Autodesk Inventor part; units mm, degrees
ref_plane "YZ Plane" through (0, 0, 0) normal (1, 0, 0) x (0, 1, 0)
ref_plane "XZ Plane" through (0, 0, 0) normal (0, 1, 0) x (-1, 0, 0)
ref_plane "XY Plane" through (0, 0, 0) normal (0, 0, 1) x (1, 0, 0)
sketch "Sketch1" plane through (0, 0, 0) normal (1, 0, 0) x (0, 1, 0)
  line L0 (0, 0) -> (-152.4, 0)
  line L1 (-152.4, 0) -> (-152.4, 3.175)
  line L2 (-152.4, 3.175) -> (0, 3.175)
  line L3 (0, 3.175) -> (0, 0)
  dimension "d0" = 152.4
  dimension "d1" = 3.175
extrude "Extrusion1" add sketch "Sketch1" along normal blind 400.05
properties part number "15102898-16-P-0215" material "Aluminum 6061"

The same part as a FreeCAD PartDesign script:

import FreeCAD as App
import Part
import Sketcher

V = App.Vector
Q = App.Units.Quantity


def add_polygon(sketch, points):
    """Adds a closed chain of lines whose ends are joined by coincident constraints."""
    first, n = sketch.GeometryCount, len(points)
    for a, b in zip(points, points[1:] + points[:1]):
        sketch.addGeometry(Part.LineSegment(App.Vector(*a, 0), App.Vector(*b, 0)), False)
    for i in range(n):
        sketch.addConstraint(Sketcher.Constraint("Coincident", first + i, 2, first + (i + 1) % n, 1))

doc = App.newDocument("Part")
body = doc.addObject("PartDesign::Body", "Body")

# Sketch on YZ plane
sketch1 = body.newObject("Sketcher::SketchObject", "Sketch")
sketch1.AttachmentSupport = (doc.getObject("YZ_Plane"), [""])
sketch1.MapMode = "FlatFace"
add_polygon(sketch1, [(-152.4, 0), (0, 0), (0, 3.175), (-152.4, 3.175)])  # lines 0-3
sketch1.addConstraint([
    Sketcher.Constraint("Horizontal", 0),
    Sketcher.Constraint("Vertical", 1),
    Sketcher.Constraint("Horizontal", 2),
    Sketcher.Constraint("Vertical", 3),
    Sketcher.Constraint("Coincident", 0, 2, -1, 1),
    Sketcher.Constraint("DistanceX", 0, 1, 0, 2, Q("6 in")),
    Sketcher.Constraint("DistanceY", 1, 1, 1, 2, Q("0.125 in")),
])
pad1 = body.newObject("PartDesign::Pad", "Pad")
pad1.Profile = sketch1
pad1.Length = Q("15.75 in")

doc.recompute()
